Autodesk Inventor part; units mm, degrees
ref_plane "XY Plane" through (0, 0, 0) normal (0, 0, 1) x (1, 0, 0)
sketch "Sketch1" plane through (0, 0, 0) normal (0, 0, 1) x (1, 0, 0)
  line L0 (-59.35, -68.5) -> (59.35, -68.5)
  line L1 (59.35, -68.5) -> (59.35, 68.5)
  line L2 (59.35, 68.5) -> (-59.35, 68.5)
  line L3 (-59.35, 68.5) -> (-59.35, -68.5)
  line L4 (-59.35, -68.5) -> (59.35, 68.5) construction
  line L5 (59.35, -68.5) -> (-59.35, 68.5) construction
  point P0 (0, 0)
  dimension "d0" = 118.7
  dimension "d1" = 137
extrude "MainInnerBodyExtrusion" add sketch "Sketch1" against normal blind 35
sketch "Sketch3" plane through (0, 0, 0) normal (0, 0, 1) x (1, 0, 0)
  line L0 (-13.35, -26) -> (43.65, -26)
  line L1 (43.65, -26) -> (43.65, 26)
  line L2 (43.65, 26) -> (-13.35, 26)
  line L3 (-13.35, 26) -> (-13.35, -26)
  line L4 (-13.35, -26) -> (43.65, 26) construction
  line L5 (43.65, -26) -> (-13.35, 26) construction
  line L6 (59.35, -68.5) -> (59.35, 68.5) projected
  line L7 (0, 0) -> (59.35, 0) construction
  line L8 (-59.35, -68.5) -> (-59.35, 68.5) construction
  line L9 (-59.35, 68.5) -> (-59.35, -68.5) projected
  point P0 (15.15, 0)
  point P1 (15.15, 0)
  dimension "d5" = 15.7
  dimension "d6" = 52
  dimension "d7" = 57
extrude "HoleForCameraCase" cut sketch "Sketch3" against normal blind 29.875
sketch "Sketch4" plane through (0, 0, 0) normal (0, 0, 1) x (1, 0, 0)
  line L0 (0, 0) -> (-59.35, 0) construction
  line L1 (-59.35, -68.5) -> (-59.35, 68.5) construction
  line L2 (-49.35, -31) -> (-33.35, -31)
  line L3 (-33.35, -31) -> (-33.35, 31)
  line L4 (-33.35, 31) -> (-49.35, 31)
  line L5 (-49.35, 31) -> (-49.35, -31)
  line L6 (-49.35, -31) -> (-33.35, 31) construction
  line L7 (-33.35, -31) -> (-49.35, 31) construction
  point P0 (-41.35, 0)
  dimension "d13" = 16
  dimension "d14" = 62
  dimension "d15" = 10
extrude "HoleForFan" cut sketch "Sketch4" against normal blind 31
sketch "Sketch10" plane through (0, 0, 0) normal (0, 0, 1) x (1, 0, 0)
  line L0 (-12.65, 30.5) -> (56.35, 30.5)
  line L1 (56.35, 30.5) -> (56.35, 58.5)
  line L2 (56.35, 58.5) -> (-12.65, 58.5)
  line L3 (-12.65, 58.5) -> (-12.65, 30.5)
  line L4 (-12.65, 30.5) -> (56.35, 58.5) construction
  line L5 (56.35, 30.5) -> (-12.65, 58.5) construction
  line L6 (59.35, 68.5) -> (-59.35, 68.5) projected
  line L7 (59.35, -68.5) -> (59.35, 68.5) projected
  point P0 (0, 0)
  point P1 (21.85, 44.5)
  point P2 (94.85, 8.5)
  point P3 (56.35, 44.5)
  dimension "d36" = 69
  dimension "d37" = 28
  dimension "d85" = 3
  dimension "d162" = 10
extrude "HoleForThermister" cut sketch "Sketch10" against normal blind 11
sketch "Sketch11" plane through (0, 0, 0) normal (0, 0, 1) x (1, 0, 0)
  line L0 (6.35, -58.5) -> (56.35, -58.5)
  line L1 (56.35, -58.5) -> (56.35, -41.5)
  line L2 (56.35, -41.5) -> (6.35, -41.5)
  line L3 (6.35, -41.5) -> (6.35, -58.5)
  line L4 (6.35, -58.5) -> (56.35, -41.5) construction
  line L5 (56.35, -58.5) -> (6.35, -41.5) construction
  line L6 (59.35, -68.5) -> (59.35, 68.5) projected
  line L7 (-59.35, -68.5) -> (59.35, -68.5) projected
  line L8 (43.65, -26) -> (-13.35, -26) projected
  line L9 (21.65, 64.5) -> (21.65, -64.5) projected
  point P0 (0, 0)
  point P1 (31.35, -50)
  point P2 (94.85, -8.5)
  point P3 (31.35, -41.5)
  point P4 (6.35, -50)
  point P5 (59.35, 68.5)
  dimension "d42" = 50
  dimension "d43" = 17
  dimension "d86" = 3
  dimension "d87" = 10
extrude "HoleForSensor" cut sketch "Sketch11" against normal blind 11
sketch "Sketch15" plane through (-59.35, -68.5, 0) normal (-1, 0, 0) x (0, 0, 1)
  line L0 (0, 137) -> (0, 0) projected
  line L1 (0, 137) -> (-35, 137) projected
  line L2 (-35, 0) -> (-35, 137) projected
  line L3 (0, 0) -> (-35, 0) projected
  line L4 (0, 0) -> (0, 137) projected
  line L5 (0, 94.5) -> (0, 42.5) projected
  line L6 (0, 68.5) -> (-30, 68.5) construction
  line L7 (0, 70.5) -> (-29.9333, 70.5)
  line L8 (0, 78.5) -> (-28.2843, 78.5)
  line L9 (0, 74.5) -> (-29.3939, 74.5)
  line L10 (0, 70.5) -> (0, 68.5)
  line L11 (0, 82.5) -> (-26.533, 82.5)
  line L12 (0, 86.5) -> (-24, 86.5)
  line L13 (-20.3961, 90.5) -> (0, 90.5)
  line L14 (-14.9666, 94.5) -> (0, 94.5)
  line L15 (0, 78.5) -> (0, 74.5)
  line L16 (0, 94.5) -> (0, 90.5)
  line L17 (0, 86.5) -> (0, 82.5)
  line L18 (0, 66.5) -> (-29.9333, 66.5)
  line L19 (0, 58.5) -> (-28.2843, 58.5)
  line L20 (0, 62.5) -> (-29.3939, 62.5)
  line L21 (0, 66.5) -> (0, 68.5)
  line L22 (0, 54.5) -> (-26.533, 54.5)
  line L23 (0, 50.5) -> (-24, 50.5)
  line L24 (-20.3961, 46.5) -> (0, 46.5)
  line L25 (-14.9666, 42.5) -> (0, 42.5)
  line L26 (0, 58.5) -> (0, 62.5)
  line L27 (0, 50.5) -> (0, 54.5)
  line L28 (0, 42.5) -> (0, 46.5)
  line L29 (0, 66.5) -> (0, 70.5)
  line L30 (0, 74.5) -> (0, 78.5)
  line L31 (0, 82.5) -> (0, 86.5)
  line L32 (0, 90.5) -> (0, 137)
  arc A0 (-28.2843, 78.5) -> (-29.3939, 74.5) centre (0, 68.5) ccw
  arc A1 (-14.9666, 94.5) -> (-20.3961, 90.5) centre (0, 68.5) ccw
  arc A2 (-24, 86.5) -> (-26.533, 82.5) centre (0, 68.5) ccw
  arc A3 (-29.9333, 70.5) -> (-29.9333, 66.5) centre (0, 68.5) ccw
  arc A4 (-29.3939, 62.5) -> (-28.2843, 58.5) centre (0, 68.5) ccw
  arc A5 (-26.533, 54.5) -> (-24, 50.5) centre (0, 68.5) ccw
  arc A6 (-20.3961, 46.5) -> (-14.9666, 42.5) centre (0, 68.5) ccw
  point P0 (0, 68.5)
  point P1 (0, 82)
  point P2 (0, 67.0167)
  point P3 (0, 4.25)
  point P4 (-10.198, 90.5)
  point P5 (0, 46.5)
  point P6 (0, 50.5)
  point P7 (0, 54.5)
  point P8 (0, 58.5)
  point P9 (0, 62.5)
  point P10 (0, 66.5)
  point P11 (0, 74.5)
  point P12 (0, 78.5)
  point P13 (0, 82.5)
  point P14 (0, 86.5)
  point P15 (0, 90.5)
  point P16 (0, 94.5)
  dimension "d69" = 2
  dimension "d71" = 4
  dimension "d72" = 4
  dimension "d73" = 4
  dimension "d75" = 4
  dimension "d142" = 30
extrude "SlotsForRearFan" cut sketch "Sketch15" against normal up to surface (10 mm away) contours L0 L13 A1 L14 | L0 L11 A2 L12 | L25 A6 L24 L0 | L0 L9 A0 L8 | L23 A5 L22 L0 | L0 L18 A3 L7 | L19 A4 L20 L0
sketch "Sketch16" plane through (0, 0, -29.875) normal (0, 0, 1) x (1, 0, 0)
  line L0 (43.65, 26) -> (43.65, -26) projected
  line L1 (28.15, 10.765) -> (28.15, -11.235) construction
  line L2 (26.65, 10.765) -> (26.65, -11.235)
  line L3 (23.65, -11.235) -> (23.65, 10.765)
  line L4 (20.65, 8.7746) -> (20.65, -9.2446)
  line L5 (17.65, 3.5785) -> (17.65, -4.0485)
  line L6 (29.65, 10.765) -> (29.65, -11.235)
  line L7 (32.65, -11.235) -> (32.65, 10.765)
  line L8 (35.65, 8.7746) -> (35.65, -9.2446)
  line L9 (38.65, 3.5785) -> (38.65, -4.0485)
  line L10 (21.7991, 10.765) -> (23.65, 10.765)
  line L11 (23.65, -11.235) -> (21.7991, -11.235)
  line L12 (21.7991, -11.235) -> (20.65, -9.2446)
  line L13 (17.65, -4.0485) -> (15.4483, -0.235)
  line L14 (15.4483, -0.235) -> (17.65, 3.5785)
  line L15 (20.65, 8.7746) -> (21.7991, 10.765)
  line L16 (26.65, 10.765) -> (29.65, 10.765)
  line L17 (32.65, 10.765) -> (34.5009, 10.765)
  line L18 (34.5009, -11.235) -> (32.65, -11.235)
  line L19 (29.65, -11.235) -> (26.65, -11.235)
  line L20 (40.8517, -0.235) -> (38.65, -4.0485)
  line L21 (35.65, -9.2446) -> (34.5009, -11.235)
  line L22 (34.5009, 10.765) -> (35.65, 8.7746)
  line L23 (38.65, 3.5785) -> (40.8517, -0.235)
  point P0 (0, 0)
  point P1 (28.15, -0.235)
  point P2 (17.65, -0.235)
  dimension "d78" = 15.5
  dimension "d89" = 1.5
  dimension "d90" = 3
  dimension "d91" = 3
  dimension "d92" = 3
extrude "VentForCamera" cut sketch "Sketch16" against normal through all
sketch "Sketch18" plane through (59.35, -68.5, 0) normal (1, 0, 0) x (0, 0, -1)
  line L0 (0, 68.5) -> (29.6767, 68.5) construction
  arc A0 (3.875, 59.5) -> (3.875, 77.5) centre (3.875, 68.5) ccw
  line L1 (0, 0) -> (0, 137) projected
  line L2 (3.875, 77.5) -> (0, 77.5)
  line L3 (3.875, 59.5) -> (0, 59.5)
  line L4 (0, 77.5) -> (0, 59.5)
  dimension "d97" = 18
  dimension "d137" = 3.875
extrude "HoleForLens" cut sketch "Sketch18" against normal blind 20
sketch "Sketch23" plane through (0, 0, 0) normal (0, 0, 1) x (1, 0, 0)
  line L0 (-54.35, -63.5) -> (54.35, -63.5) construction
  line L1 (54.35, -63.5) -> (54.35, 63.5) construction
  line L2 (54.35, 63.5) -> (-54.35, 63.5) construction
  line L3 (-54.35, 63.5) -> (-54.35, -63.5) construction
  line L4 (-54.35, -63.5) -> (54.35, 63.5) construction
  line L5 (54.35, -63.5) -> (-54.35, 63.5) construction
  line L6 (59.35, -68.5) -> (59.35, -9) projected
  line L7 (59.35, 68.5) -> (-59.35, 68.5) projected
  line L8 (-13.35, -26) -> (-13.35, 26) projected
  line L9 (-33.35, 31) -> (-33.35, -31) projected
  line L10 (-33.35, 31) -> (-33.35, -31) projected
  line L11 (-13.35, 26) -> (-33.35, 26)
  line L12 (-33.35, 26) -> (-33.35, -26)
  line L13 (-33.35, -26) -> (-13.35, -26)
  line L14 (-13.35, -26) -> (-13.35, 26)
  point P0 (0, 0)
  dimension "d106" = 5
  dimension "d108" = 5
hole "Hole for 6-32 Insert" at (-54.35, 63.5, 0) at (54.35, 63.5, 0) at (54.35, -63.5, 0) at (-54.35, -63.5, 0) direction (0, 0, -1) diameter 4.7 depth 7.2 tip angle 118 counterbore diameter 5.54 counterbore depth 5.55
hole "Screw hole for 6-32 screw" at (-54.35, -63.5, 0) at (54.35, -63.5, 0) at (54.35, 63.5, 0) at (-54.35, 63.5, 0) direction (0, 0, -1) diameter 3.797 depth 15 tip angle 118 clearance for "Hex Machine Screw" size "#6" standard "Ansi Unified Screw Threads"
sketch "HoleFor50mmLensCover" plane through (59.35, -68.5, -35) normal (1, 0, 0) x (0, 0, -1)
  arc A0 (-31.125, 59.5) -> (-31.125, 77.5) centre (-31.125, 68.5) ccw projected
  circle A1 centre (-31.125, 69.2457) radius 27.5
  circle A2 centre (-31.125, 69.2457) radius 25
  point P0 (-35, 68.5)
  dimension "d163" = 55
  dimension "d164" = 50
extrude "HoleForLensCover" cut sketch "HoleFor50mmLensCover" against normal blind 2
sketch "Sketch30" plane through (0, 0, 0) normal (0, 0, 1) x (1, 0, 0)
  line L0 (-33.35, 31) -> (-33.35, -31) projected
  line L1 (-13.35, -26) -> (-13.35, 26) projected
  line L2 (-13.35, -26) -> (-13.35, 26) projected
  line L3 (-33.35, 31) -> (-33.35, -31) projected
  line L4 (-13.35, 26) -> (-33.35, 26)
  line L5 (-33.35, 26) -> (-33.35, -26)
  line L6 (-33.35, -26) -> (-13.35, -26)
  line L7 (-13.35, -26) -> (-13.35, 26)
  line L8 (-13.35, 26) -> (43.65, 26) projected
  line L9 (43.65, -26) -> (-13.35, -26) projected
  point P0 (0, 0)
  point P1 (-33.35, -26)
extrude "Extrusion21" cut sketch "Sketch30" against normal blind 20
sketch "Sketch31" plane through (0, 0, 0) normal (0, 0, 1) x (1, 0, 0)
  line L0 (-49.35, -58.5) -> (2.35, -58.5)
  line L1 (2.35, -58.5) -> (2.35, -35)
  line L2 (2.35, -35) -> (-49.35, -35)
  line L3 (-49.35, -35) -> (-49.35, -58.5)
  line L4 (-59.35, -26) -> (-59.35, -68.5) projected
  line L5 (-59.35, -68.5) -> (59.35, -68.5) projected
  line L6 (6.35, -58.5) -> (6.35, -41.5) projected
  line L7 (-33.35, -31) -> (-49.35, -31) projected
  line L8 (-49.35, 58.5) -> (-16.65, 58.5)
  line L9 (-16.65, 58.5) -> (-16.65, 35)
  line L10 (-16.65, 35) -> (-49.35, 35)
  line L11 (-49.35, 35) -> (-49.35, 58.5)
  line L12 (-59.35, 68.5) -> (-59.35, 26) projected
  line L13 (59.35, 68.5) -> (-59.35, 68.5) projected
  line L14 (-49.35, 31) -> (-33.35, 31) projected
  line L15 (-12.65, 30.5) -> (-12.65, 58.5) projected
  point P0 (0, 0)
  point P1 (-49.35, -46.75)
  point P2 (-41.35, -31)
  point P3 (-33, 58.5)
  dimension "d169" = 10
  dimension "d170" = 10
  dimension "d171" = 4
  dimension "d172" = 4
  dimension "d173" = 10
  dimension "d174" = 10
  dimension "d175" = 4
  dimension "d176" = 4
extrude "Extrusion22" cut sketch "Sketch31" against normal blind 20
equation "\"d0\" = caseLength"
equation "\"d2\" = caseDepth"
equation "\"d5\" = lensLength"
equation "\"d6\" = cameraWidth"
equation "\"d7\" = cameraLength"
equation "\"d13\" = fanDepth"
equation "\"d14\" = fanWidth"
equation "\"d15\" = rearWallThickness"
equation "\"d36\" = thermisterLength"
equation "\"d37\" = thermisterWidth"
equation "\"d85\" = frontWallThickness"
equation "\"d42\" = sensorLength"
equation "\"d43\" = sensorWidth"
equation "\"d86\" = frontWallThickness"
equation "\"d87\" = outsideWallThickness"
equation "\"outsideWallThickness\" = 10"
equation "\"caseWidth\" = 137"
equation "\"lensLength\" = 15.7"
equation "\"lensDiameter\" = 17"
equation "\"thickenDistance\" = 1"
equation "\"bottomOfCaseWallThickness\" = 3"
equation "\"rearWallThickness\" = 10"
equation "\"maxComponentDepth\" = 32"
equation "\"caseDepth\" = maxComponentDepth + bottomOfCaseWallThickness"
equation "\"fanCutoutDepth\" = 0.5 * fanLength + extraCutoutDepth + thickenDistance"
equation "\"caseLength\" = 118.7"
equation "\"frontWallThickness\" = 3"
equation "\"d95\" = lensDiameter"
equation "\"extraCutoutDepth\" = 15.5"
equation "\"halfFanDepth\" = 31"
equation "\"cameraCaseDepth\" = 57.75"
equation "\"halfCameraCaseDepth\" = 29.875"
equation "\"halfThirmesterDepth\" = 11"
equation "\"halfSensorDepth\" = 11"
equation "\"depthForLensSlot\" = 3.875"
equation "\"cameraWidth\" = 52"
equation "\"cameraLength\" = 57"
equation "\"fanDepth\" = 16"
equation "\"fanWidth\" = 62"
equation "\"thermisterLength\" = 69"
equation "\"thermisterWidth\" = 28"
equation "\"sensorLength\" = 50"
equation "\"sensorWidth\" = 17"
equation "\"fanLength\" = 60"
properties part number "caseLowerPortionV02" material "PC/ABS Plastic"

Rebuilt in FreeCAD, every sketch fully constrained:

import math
import FreeCAD as App
import Part
import Sketcher

V = App.Vector
Q = App.Units.Quantity

doc = App.newDocument("Part")
params = doc.addObject("Spreadsheet::Sheet", "Params")
for row, (alias, value) in enumerate([
    ("sketch1_height", "137 mm"),
    ("sketch1_width", "118.7 mm"),
    ("pad1_length", "35 mm"),
    ("sketch2_width", "57 mm"),
    ("sketch2_height", "52 mm"),
    ("pocket1_length", "29.875 mm"),
    ("sketch3_width", "16 mm"),
    ("sketch3_height", "62 mm"),
    ("pocket2_length", "31 mm"),
    ("sketch4_width", "69 mm"),
    ("sketch4_height", "28 mm"),
    ("pocket3_length", "11 mm"),
    ("sketch5_width", "50 mm"),
    ("sketch5_height", "17 mm"),
    ("pocket4_length", "11 mm"),
    ("sketch6_radius", "30 mm"),
    ("sketch6_width", "4 mm"),
    ("pocket5_length", "10 mm"),
    ("sketch7_width", "3 mm"),
    ("sketch7_height", "22 mm"),
    ("sketch8_radius", "9 mm"),
    ("pocket7_length", "20 mm"),
    ("sketch9_diameter", "4.7 mm"),
    ("hole_diameter", "4.7 mm"),
    ("hole_depth", "7.2 mm"),
    ("hole_cbore_diameter", "5.54 mm"),
    ("hole_cbore_depth", "5.55 mm"),
    ("hole2_diameter", "3.797 mm"),
    ("hole2_depth", "15 mm"),
    ("sketch11_diameter", "55 mm"),
    ("sketch11_diameter2", "50 mm"),
    ("pocket8_length", "2 mm"),
    ("sketch12_width", "20 mm"),
    ("sketch12_height", "52 mm"),
    ("pocket9_length", "20 mm"),
    ("sketch13_width", "51.7 mm"),
    ("sketch13_width2", "32.7 mm"),
    ("sketch13_height", "23.5 mm"),
    ("pocket10_length", "20 mm"),
], start=1):
    params.set(f"A{row}", alias)
    params.set(f"B{row}", "=" + value)
    params.setAlias(f"B{row}", alias)

body = doc.addObject("PartDesign::Body", "Body")

sketch1 = body.newObject("Sketcher::SketchObject", "Sketch")
sketch1.AttachmentSupport = (doc.getObject("XY_Plane"), [""])
sketch1.MapMode = "FlatFace"
sketch1.addGeometry([
    Part.LineSegment(V(-59, 68, 0), V(-59, -68, 0)),
    Part.LineSegment(V(-59, -68, 0), V(59, -68, 0)),
    Part.LineSegment(V(59, -68, 0), V(59, 68, 0)),
    Part.LineSegment(V(59, 68, 0), V(-59, 68, 0)),
], False)
sketch1.addConstraint([
    Sketcher.Constraint("Coincident", 0, 2, 1, 1),
    Sketcher.Constraint("Coincident", 1, 2, 2, 1),
    Sketcher.Constraint("Coincident", 2, 2, 3, 1),
    Sketcher.Constraint("Coincident", 3, 2, 0, 1),
    Sketcher.Constraint("Vertical", 0),
    Sketcher.Constraint("Horizontal", 1),
    Sketcher.Constraint("Vertical", 2),
    Sketcher.Constraint("Horizontal", 3),
    Sketcher.Constraint("Symmetric", 0, 2, 2, 2, -1, 1),
    Sketcher.Constraint("DistanceY", 0, 2, 0, 1, 137.0),
    Sketcher.Constraint("DistanceX", 1, 1, 1, 2, 118.7),
])
sketch1.setExpression("Constraints[9]", "Params.sketch1_height")
sketch1.setExpression("Constraints[10]", "Params.sketch1_width")
pad1 = body.newObject("PartDesign::Pad", "Pad")
pad1.Profile = sketch1
pad1.setExpression("Length", "Params.pad1_length")
pad1.Reversed = True

sketch2 = body.newObject("Sketcher::SketchObject", "Sketch001")
sketch2.AttachmentSupport = (doc.getObject("XY_Plane"), [""])
sketch2.MapMode = "FlatFace"
sketch2.addGeometry([
    Part.LineSegment(V(-13, 26, 0), V(-13, -26, 0)),
    Part.LineSegment(V(-13, -26, 0), V(44, -26, 0)),
    Part.LineSegment(V(44, -26, 0), V(44, 26, 0)),
    Part.LineSegment(V(44, 26, 0), V(-13, 26, 0)),
], False)
sketch2.addConstraint([
    Sketcher.Constraint("Coincident", 0, 2, 1, 1),
    Sketcher.Constraint("Coincident", 1, 2, 2, 1),
    Sketcher.Constraint("Coincident", 2, 2, 3, 1),
    Sketcher.Constraint("Coincident", 3, 2, 0, 1),
    Sketcher.Constraint("Vertical", 0),
    Sketcher.Constraint("Horizontal", 1),
    Sketcher.Constraint("Vertical", 2),
    Sketcher.Constraint("Horizontal", 3),
    Sketcher.Constraint("DistanceX", 1, 1, 1, 2, 57.0),
    Sketcher.Constraint("DistanceY", 0, 2, 0, 1, 52.0),
    Sketcher.Constraint("DistanceY", 0, 2, -1, 1, 26.0),
    Sketcher.Constraint("DistanceX", 0, 2, -1, 1, 13.35),
])
sketch2.setExpression("Constraints[8]", "Params.sketch2_width")
sketch2.setExpression("Constraints[9]", "Params.sketch2_height")
pocket1 = body.newObject("PartDesign::Pocket", "Pocket")
pocket1.Profile = sketch2
pocket1.setExpression("Length", "Params.pocket1_length")

sketch3 = body.newObject("Sketcher::SketchObject", "Sketch002")
sketch3.AttachmentSupport = (doc.getObject("XY_Plane"), [""])
sketch3.MapMode = "FlatFace"
sketch3.addGeometry([
    Part.LineSegment(V(-49, 31, 0), V(-49, -31, 0)),
    Part.LineSegment(V(-49, -31, 0), V(-33, -31, 0)),
    Part.LineSegment(V(-33, -31, 0), V(-33, 31, 0)),
    Part.LineSegment(V(-33, 31, 0), V(-49, 31, 0)),
], False)
sketch3.addConstraint([
    Sketcher.Constraint("Coincident", 0, 2, 1, 1),
    Sketcher.Constraint("Coincident", 1, 2, 2, 1),
    Sketcher.Constraint("Coincident", 2, 2, 3, 1),
    Sketcher.Constraint("Coincident", 3, 2, 0, 1),
    Sketcher.Constraint("Vertical", 0),
    Sketcher.Constraint("Horizontal", 1),
    Sketcher.Constraint("Vertical", 2),
    Sketcher.Constraint("Horizontal", 3),
    Sketcher.Constraint("DistanceX", 1, 1, 1, 2, 16.0),
    Sketcher.Constraint("DistanceY", 0, 2, 0, 1, 62.0),
    Sketcher.Constraint("DistanceY", 0, 2, -1, 1, 31.0),
    Sketcher.Constraint("DistanceX", 0, 2, -1, 1, 49.35),
])
sketch3.setExpression("Constraints[8]", "Params.sketch3_width")
sketch3.setExpression("Constraints[9]", "Params.sketch3_height")
pocket2 = body.newObject("PartDesign::Pocket", "Pocket001")
pocket2.Profile = sketch3
pocket2.setExpression("Length", "Params.pocket2_length")

sketch4 = body.newObject("Sketcher::SketchObject", "Sketch003")
sketch4.AttachmentSupport = (doc.getObject("XY_Plane"), [""])
sketch4.MapMode = "FlatFace"
sketch4.addGeometry([
    Part.LineSegment(V(-13, 58, 0), V(-13, 30, 0)),
    Part.LineSegment(V(-13, 30, 0), V(56, 30, 0)),
    Part.LineSegment(V(56, 30, 0), V(56, 58, 0)),
    Part.LineSegment(V(56, 58, 0), V(-13, 58, 0)),
], False)
sketch4.addConstraint([
    Sketcher.Constraint("Coincident", 0, 2, 1, 1),
    Sketcher.Constraint("Coincident", 1, 2, 2, 1),
    Sketcher.Constraint("Coincident", 2, 2, 3, 1),
    Sketcher.Constraint("Coincident", 3, 2, 0, 1),
    Sketcher.Constraint("Vertical", 0),
    Sketcher.Constraint("Horizontal", 1),
    Sketcher.Constraint("Vertical", 2),
    Sketcher.Constraint("Horizontal", 3),
    Sketcher.Constraint("DistanceX", 1, 1, 1, 2, 69.0),
    Sketcher.Constraint("DistanceY", 0, 2, 0, 1, 28.0),
    Sketcher.Constraint("DistanceY", -1, 1, 0, 2, 30.5),
    Sketcher.Constraint("DistanceX", 0, 2, -1, 1, 12.65),
])
sketch4.setExpression("Constraints[8]", "Params.sketch4_width")
sketch4.setExpression("Constraints[9]", "Params.sketch4_height")
pocket3 = body.newObject("PartDesign::Pocket", "Pocket002")
pocket3.Profile = sketch4
pocket3.setExpression("Length", "Params.pocket3_length")

sketch5 = body.newObject("Sketcher::SketchObject", "Sketch004")
sketch5.AttachmentSupport = (doc.getObject("XY_Plane"), [""])
sketch5.MapMode = "FlatFace"
sketch5.addGeometry([
    Part.LineSegment(V(6, -42, 0), V(6, -58, 0)),
    Part.LineSegment(V(6, -58, 0), V(56, -58, 0)),
    Part.LineSegment(V(56, -58, 0), V(56, -42, 0)),
    Part.LineSegment(V(56, -42, 0), V(6, -42, 0)),
], False)
sketch5.addConstraint([
    Sketcher.Constraint("Coincident", 0, 2, 1, 1),
    Sketcher.Constraint("Coincident", 1, 2, 2, 1),
    Sketcher.Constraint("Coincident", 2, 2, 3, 1),
    Sketcher.Constraint("Coincident", 3, 2, 0, 1),
    Sketcher.Constraint("Vertical", 0),
    Sketcher.Constraint("Horizontal", 1),
    Sketcher.Constraint("Vertical", 2),
    Sketcher.Constraint("Horizontal", 3),
    Sketcher.Constraint("DistanceX", 1, 1, 1, 2, 50.0),
    Sketcher.Constraint("DistanceY", 0, 2, 0, 1, 17.0),
    Sketcher.Constraint("DistanceY", 0, 2, -1, 1, 58.5),
    Sketcher.Constraint("DistanceX", -1, 1, 0, 2, 6.35),
])
sketch5.setExpression("Constraints[8]", "Params.sketch5_width")
sketch5.setExpression("Constraints[9]", "Params.sketch5_height")
pocket4 = body.newObject("PartDesign::Pocket", "Pocket003")
pocket4.Profile = sketch5
pocket4.setExpression("Length", "Params.pocket4_length")

sketch6 = body.newObject("Sketcher::SketchObject", "Sketch005")
sketch6.AttachmentSupport = (doc.getObject("YZ_Plane"), [""])
sketch6.MapMode = "FlatFace"
sketch6.AttachmentOffset = App.Placement(V(0, 0, -59.35), App.Rotation())
sketch6.addGeometry([
    Part.LineSegment(V(22, 0, 0), V(26, 0, 0)),
    Part.LineSegment(V(26, 0, 0), V(26, -14.9666, 0)),
    Part.ArcOfCircle(Part.Circle(V(-0.001963, 0.001282, 0), V(0, 0, 1), 30.002326), math.radians(-42.832706), math.radians(-29.926638)),
    Part.LineSegment(V(22, -20.3961, 0), V(22, 0, 0)),
    Part.LineSegment(V(14, 0, 0), V(18, 0, 0)),
    Part.LineSegment(V(18, 0, 0), V(18, -24, 0)),
    Part.ArcOfCircle(Part.Circle(V(0, 0, 0), V(0, 0, 1), 30.000041), math.radians(-62.181862), math.radians(-53.130102)),
    Part.LineSegment(V(14, -26.533, 0), V(14, 0, 0)),
    Part.LineSegment(V(-26, -14.9666, 0), V(-26, 0, 0)),
    Part.LineSegment(V(-26, 0, 0), V(-22, 0, 0)),
    Part.LineSegment(V(-22, 0, 0), V(-22, -20.3961, 0)),
    Part.ArcOfCircle(Part.Circle(V(-0.001806, -0.001494, 0), V(0, 0, 1), 29.997675), math.radians(-150.074367), math.radians(-137.166289)),
    Part.LineSegment(V(6, 0, 0), V(10, 0, 0)),
    Part.LineSegment(V(10, 0, 0), V(10, -28.2843, 0)),
    Part.ArcOfCircle(Part.Circle(V(0, 0, 0), V(0, 0, 1), 29.999985), math.radians(-78.46305), math.radians(-70.528798)),
    Part.LineSegment(V(6, -29.3939, 0), V(6, 0, 0)),
    Part.LineSegment(V(-18, -24, 0), V(-18, 0, 0)),
    Part.LineSegment(V(-18, 0, 0), V(-14, 0, 0)),
    Part.LineSegment(V(-14, 0, 0), V(-14, -26.533, 0)),
    Part.ArcOfCircle(Part.Circle(V(0, 0, 0), V(0, 0, 1), 29.999985), math.radians(-126.869898), math.radians(-117.818138)),
    Part.LineSegment(V(-2, 0, 0), V(2, 0, 0)),
    Part.LineSegment(V(2, 0, 0), V(2, -29.9333, 0)),
    Part.ArcOfCircle(Part.Circle(V(0, 0, 0), V(0, 0, 1), 30.000041), math.radians(-93.822549), math.radians(-86.177451)),
    Part.LineSegment(V(-2, -29.9333, 0), V(-2, 0, 0)),
    Part.LineSegment(V(-10, -28.2843, 0), V(-10, 0, 0)),
    Part.LineSegment(V(-10, 0, 0), V(-6, 0, 0)),
    Part.LineSegment(V(-6, 0, 0), V(-6, -29.3939, 0)),
    Part.ArcOfCircle(Part.Circle(V(0, 0, 0), V(0, 0, 1), 30.000041), math.radians(-109.471202), math.radians(-101.53695)),
], False)
sketch6.addConstraint([
    Sketcher.Constraint("Coincident", 0, 2, 1, 1),
    Sketcher.Constraint("Coincident", 1, 2, 2, 2),
    Sketcher.Constraint("Coincident", 2, 1, 3, 1),
    Sketcher.Constraint("Coincident", 3, 2, 0, 1),
    Sketcher.Constraint("Coincident", 4, 2, 5, 1),
    Sketcher.Constraint("Coincident", 5, 2, 6, 2),
    Sketcher.Constraint("Coincident", 6, 1, 7, 1),
    Sketcher.Constraint("Coincident", 7, 2, 4, 1),
    Sketcher.Constraint("Coincident", 8, 2, 9, 1),
    Sketcher.Constraint("Coincident", 9, 2, 10, 1),
    Sketcher.Constraint("Coincident", 10, 2, 11, 2),
    Sketcher.Constraint("Coincident", 11, 1, 8, 1),
    Sketcher.Constraint("Coincident", 12, 2, 13, 1),
    Sketcher.Constraint("Coincident", 13, 2, 14, 2),
    Sketcher.Constraint("Coincident", 14, 1, 15, 1),
    Sketcher.Constraint("Coincident", 15, 2, 12, 1),
    Sketcher.Constraint("Coincident", 16, 2, 17, 1),
    Sketcher.Constraint("Coincident", 17, 2, 18, 1),
    Sketcher.Constraint("Coincident", 18, 2, 19, 2),
    Sketcher.Constraint("Coincident", 19, 1, 16, 1),
    Sketcher.Constraint("Coincident", 20, 2, 21, 1),
    Sketcher.Constraint("Coincident", 21, 2, 22, 2),
    Sketcher.Constraint("Coincident", 22, 1, 23, 1),
    Sketcher.Constraint("Coincident", 23, 2, 20, 1),
    Sketcher.Constraint("Coincident", 24, 2, 25, 1),
    Sketcher.Constraint("Coincident", 25, 2, 26, 1),
    Sketcher.Constraint("Coincident", 26, 2, 27, 2),
    Sketcher.Constraint("Coincident", 27, 1, 24, 1),
    Sketcher.Constraint("Horizontal", 0),
    Sketcher.Constraint("Vertical", 1),
    Sketcher.Constraint("Vertical", 3),
    Sketcher.Constraint("Horizontal", 4),
    Sketcher.Constraint("Vertical", 5),
    Sketcher.Constraint("Vertical", 7),
    Sketcher.Constraint("Vertical", 8),
    Sketcher.Constraint("Horizontal", 9),
    Sketcher.Constraint("Vertical", 10),
    Sketcher.Constraint("Horizontal", 12),
    Sketcher.Constraint("Vertical", 13),
    Sketcher.Constraint("Vertical", 15),
    Sketcher.Constraint("Vertical", 16),
    Sketcher.Constraint("Horizontal", 17),
    Sketcher.Constraint("Vertical", 18),
    Sketcher.Constraint("Horizontal", 20),
    Sketcher.Constraint("Vertical", 21),
    Sketcher.Constraint("Vertical", 23),
    Sketcher.Constraint("Vertical", 24),
    Sketcher.Constraint("Horizontal", 25),
    Sketcher.Constraint("Vertical", 26),
    Sketcher.Constraint("Coincident", 6, 3, -1, 1),
    Sketcher.Constraint("Coincident", 14, 3, -1, 1),
    Sketcher.Constraint("Coincident", 19, 3, -1, 1),
    Sketcher.Constraint("Coincident", 22, 3, -1, 1),
    Sketcher.Constraint("Coincident", 27, 3, -1, 1),
    Sketcher.Constraint("Equal", 6, 14),
    Sketcher.Constraint("Equal", 14, 19),
    Sketcher.Constraint("Equal", 19, 22),
    Sketcher.Constraint("Equal", 22, 27),
    Sketcher.Constraint("Symmetric", 0, 2, 8, 2, -1, 1),
    Sketcher.Constraint("Symmetric", 4, 2, 16, 2, -1, 1),
    Sketcher.Constraint("Symmetric", 20, 2, 23, 2, -1, 1),
    Sketcher.Constraint("Symmetric", 12, 2, 24, 2, -1, 1),
    Sketcher.Constraint("Symmetric", 3, 2, 9, 2, -2),
    Sketcher.Constraint("Symmetric", 7, 2, 17, 2, -2),
    Sketcher.Constraint("Symmetric", 15, 2, 25, 2, -2),
    Sketcher.Constraint("Symmetric", 2, 3, 11, 3, -1),
    Sketcher.Constraint("Horizontal", 2, 1, 10, 2),
    Sketcher.Constraint("Horizontal", 1, 2, 11, 1),
    Sketcher.Constraint("Equal", 0, 4),
    Sketcher.Constraint("Equal", 9, 12),
    Sketcher.Constraint("Equal", 17, 20),
    Sketcher.Constraint("Radius", 6, 30.0),
    Sketcher.Constraint("DistanceX", 0, 1, 0, 2, 4.0),
    Sketcher.Constraint("DistanceX", 4, 2, 3, 2, 4.0),
    Sketcher.Constraint("DistanceX", 12, 2, 7, 2, 4.0),
    Sketcher.Constraint("DistanceX", 21, 2, 14, 1, 4.0),
    Sketcher.Constraint("Radius", 2, 30.0023),
    Sketcher.Constraint("Radius", 11, 29.9977),
])
sketch6.setExpression("Constraints[71]", "Params.sketch6_radius")
sketch6.setExpression("Constraints[72]", "Params.sketch6_width")
pocket5 = body.newObject("PartDesign::Pocket", "Pocket004")
pocket5.Profile = sketch6
pocket5.setExpression("Length", "Params.pocket5_length")
pocket5.Reversed = True

sketch7 = body.newObject("Sketcher::SketchObject", "Sketch006")
sketch7.AttachmentSupport = (doc.getObject("XY_Plane"), [""])
sketch7.MapMode = "FlatFace"
sketch7.AttachmentOffset = App.Placement(V(0, 0, -29.875), App.Rotation())
sketch7.addGeometry([
    Part.LineSegment(V(29.6, 10.8, 0), V(26.6, 10.8, 0)),
    Part.LineSegment(V(26.6, 10.8, 0), V(26.6, -11.2, 0)),
    Part.LineSegment(V(26.6, -11.2, 0), V(29.6, -11.2, 0)),
    Part.LineSegment(V(29.6, -11.2, 0), V(29.6, 10.8, 0)),
    Part.LineSegment(V(21.8, -11.2, 0), V(23.6, -11.2, 0)),
    Part.LineSegment(V(23.6, -11.2, 0), V(23.6, 10.8, 0)),
    Part.LineSegment(V(23.6, 10.8, 0), V(21.8, 10.8, 0)),
    Part.LineSegment(V(21.8, 10.8, 0), V(20.6, 8.8, 0)),
    Part.LineSegment(V(20.6, 8.8, 0), V(20.6, -9.2, 0)),
    Part.LineSegment(V(20.6, -9.2, 0), V(21.8, -11.2, 0)),
    Part.LineSegment(V(17.6, -4, 0), V(17.6, 3.6, 0)),
    Part.LineSegment(V(17.6, 3.6, 0), V(15.4, -0.2, 0)),
    Part.LineSegment(V(15.4, -0.2, 0), V(17.6, -4, 0)),
    Part.LineSegment(V(32.6, 10.8, 0), V(32.6, -11.2, 0)),
    Part.LineSegment(V(32.6, -11.2, 0), V(34.5, -11.2, 0)),
    Part.LineSegment(V(34.5, -11.2, 0), V(35.6, -9.2, 0)),
    Part.LineSegment(V(35.6, -9.2, 0), V(35.6, 8.8, 0)),
    Part.LineSegment(V(35.6, 8.8, 0), V(34.5, 10.8, 0)),
    Part.LineSegment(V(34.5, 10.8, 0), V(32.6, 10.8, 0)),
    Part.LineSegment(V(40.9, -0.2, 0), V(38.6, 3.6, 0)),
    Part.LineSegment(V(38.6, 3.6, 0), V(38.6, -4, 0)),
    Part.LineSegment(V(38.6, -4, 0), V(40.9, -0.2, 0)),
], False)
sketch7.addConstraint([
    Sketcher.Constraint("Coincident", 0, 2, 1, 1),
    Sketcher.Constraint("Coincident", 1, 2, 2, 1),
    Sketcher.Constraint("Coincident", 2, 2, 3, 1),
    Sketcher.Constraint("Coincident", 3, 2, 0, 1),
    Sketcher.Constraint("Coincident", 4, 2, 5, 1),
    Sketcher.Constraint("Coincident", 5, 2, 6, 1),
    Sketcher.Constraint("Coincident", 6, 2, 7, 1),
    Sketcher.Constraint("Coincident", 7, 2, 8, 1),
    Sketcher.Constraint("Coincident", 8, 2, 9, 1),
    Sketcher.Constraint("Coincident", 9, 2, 4, 1),
    Sketcher.Constraint("Coincident", 10, 2, 11, 1),
    Sketcher.Constraint("Coincident", 11, 2, 12, 1),
    Sketcher.Constraint("Coincident", 12, 2, 10, 1),
    Sketcher.Constraint("Coincident", 13, 2, 14, 1),
    Sketcher.Constraint("Coincident", 14, 2, 15, 1),
    Sketcher.Constraint("Coincident", 15, 2, 16, 1),
    Sketcher.Constraint("Coincident", 16, 2, 17, 1),
    Sketcher.Constraint("Coincident", 17, 2, 18, 1),
    Sketcher.Constraint("Coincident", 18, 2, 13, 1),
    Sketcher.Constraint("Coincident", 19, 2, 20, 1),
    Sketcher.Constraint("Coincident", 20, 2, 21, 1),
    Sketcher.Constraint("Coincident", 21, 2, 19, 1),
    Sketcher.Constraint("Horizontal", 0),
    Sketcher.Constraint("Vertical", 1),
    Sketcher.Constraint("Horizontal", 2),
    Sketcher.Constraint("Vertical", 3),
    Sketcher.Constraint("Horizontal", 4),
    Sketcher.Constraint("Vertical", 5),
    Sketcher.Constraint("Horizontal", 6),
    Sketcher.Constraint("Vertical", 8),
    Sketcher.Constraint("Vertical", 10),
    Sketcher.Constraint("Vertical", 13),
    Sketcher.Constraint("Horizontal", 14),
    Sketcher.Constraint("Vertical", 16),
    Sketcher.Constraint("Horizontal", 18),
    Sketcher.Constraint("Vertical", 20),
    Sketcher.Constraint("Parallel", 7, 11),
    Sketcher.Constraint("Parallel", 9, 12),
    Sketcher.Constraint("Parallel", 11, 15),
    Sketcher.Constraint("Parallel", 12, 17),
    Sketcher.Constraint("Parallel", 17, 19),
    Sketcher.Constraint("Parallel", 15, 21),
    Sketcher.Constraint("Horizontal", 2, 2, 4, 2),
    Sketcher.Constraint("Horizontal", 3, 2, 5, 2),
    Sketcher.Constraint("Horizontal", 9, 2, 13, 2),
    Sketcher.Constraint("Horizontal", 8, 2, 15, 2),
    Sketcher.Constraint("Horizontal", 7, 2, 16, 2),
    Sketcher.Constraint("Horizontal", 6, 2, 17, 2),
    Sketcher.Constraint("Horizontal", 10, 2, 19, 2),
    Sketcher.Constraint("Horizontal", 12, 2, 20, 2),
    Sketcher.Constraint("Horizontal", 11, 2, 21, 2),
    Sketcher.Constraint("Vertical", 6, 2, 9, 2),
    Sketcher.Constraint("Equal", 6, 14),
    Sketcher.Constraint("DistanceX", 0, 2, 0, 1, 3.0),
    Sketcher.Constraint("DistanceX", 4, 2, 1, 2, 3.0),
    Sketcher.Constraint("DistanceX", 7, 2, 5, 2, 3.0),
    Sketcher.Constraint("DistanceX", 10, 2, 7, 2, 3.0),
    Sketcher.Constraint("DistanceX", 2, 2, 13, 2, 3.0),
    Sketcher.Constraint("DistanceX", 16, 2, 19, 2, 3.0),
    Sketcher.Constraint("DistanceY", 1, 2, 1, 1, 22.0),
    Sketcher.Constraint("Angle", 11, Q("-119.9997 deg")),
    Sketcher.Constraint("DistanceY", 11, 2, 6, 2, 11.0),
    Sketcher.Constraint("DistanceX", 4, 1, 4, 2, 1.851),
    Sketcher.Constraint("DistanceY", 10, 1, 10, 2, 7.627),
    Sketcher.Constraint("DistanceX", -1, 1, 0, 2, 26.65),
    Sketcher.Constraint("DistanceY", -1, 1, 0, 2, 10.765),
])
sketch7.setExpression("Constraints[53]", "Params.sketch7_width")
sketch7.setExpression("Constraints[59]", "Params.sketch7_height")
pocket6 = body.newObject("PartDesign::Pocket", "Pocket005")
pocket6.Profile = sketch7
pocket6.Type = "ThroughAll"

sketch8 = body.newObject("Sketcher::SketchObject", "Sketch007")
sketch8.AttachmentSupport = (doc.getObject("YZ_Plane"), [""])
sketch8.MapMode = "FlatFace"
sketch8.AttachmentOffset = App.Placement(V(0, 0, 59.35), App.Rotation())
sketch8.addGeometry([
    Part.LineSegment(V(-9, 0, 0), V(-9, -3.9, 0)),
    Part.ArcOfCircle(Part.Circle(V(0, -3.9, 0), V(0, 0, 1), 9), math.radians(180), math.radians(360)),
    Part.LineSegment(V(9, -3.9, 0), V(9, 0, 0)),
    Part.LineSegment(V(9, 0, 0), V(-9, 0, 0)),
], False)
sketch8.addConstraint([
    Sketcher.Constraint("Tangent", 0, 2, 1, 1),
    Sketcher.Constraint("Tangent", 1, 2, 2, 1),
    Sketcher.Constraint("Coincident", 2, 2, 3, 1),
    Sketcher.Constraint("Coincident", 3, 2, 0, 1),
    Sketcher.Constraint("Vertical", 0),
    Sketcher.Constraint("Vertical", 2),
    Sketcher.Constraint("Horizontal", 3),
    Sketcher.Constraint("Symmetric", 2, 2, 3, 2, -1, 1),
    Sketcher.Constraint("Radius", 1, 9.0),
    Sketcher.Constraint("DistanceY", 0, 2, 0, 1, 3.875),
])
sketch8.setExpression("Constraints[8]", "Params.sketch8_radius")
pocket7 = body.newObject("PartDesign::Pocket", "Pocket006")
pocket7.Profile = sketch8
pocket7.setExpression("Length", "Params.pocket7_length")

sketch9 = body.newObject("Sketcher::SketchObject", "Sketch008")
sketch9.AttachmentSupport = (doc.getObject("XY_Plane"), [""])
sketch9.MapMode = "FlatFace"
sketch9.addGeometry([
    Part.Circle(V(-54.4, 63.5, 0), V(0, 0, 1), 2.4),
    Part.Circle(V(54.4, 63.5, 0), V(0, 0, 1), 2.4),
    Part.Circle(V(54.4, -63.5, 0), V(0, 0, 1), 2.4),
    Part.Circle(V(-54.4, -63.5, 0), V(0, 0, 1), 2.4),
], False)
sketch9.addConstraint([
    Sketcher.Constraint("Equal", 0, 1),
    Sketcher.Constraint("Equal", 1, 2),
    Sketcher.Constraint("Equal", 2, 3),
    Sketcher.Constraint("Symmetric", 0, 3, 2, 3, -1, 1),
    Sketcher.Constraint("Symmetric", 1, 3, 3, 3, -1, 1),
    Sketcher.Constraint("Symmetric", 0, 3, 1, 3, -2),
    Sketcher.Constraint("Diameter", 0, 4.7),
    Sketcher.Constraint("DistanceY", 2, 3, 1, 3, 127.0),
    Sketcher.Constraint("DistanceX", 0, 3, 1, 3, 108.7),
])
sketch9.setExpression("Constraints[6]", "Params.sketch9_diameter")
doc.recompute()
hole = body.newObject("PartDesign::Hole", "Hole")
hole.Profile = sketch9
hole.ThreadType = "None"
hole.setExpression("Diameter", "Params.hole_diameter")
hole.DepthType = "Dimension"
hole.setExpression("Depth", "Params.hole_depth")
hole.DrillPoint = "Angled"
hole.DrillPointAngle = 118
hole.HoleCutType = "Counterbore"
hole.setExpression("HoleCutDiameter", "Params.hole_cbore_diameter")
hole.setExpression("HoleCutDepth", "Params.hole_cbore_depth")

sketch10 = body.newObject("Sketcher::SketchObject", "Sketch009")
sketch10.AttachmentSupport = (doc.getObject("XY_Plane"), [""])
sketch10.MapMode = "FlatFace"
sketch10.addGeometry([
    Part.Circle(V(-54.4, -63.5, 0), V(0, 0, 1), 1.9),
    Part.Circle(V(54.4, -63.5, 0), V(0, 0, 1), 1.9),
    Part.Circle(V(54.4, 63.5, 0), V(0, 0, 1), 1.9),
    Part.Circle(V(-54.4, 63.5, 0), V(0, 0, 1), 1.9),
], False)
sketch10.addConstraint([
    Sketcher.Constraint("Equal", 0, 1),
    Sketcher.Constraint("Equal", 1, 2),
    Sketcher.Constraint("Equal", 2, 3),
    Sketcher.Constraint("Symmetric", 0, 3, 2, 3, -1, 1),
    Sketcher.Constraint("Symmetric", 1, 3, 3, 3, -1, 1),
    Sketcher.Constraint("Symmetric", 0, 3, 1, 3, -2),
    Sketcher.Constraint("Diameter", 0, 3.797),
    Sketcher.Constraint("DistanceY", 1, 3, 2, 3, 127.0),
    Sketcher.Constraint("DistanceX", 0, 3, 1, 3, 108.7),
])
doc.recompute()
hole2 = body.newObject("PartDesign::Hole", "Hole001")
hole2.Profile = sketch10
hole2.ThreadType = "None"
hole2.setExpression("Diameter", "Params.hole2_diameter")
hole2.DepthType = "Dimension"
hole2.setExpression("Depth", "Params.hole2_depth")
hole2.DrillPoint = "Angled"
hole2.DrillPointAngle = 118

sketch11 = body.newObject("Sketcher::SketchObject", "Sketch010")
sketch11.AttachmentSupport = (doc.getObject("YZ_Plane"), [""])
sketch11.MapMode = "FlatFace"
sketch11.AttachmentOffset = App.Placement(V(0, 0, 59.35), App.Rotation())
sketch11.addGeometry([
    Part.Circle(V(1, -4, 0), V(0, 0, 1), 28),
    Part.Circle(V(1, -4, 0), V(0, 0, 1), 25),
], False)
sketch11.addConstraint([
    Sketcher.Constraint("Coincident", 1, 3, 0, 3),
    Sketcher.Constraint("Diameter", 0, 55.0),
    Sketcher.Constraint("Diameter", 1, 50.0),
    Sketcher.Constraint("DistanceY", 0, 3, -1, 1, 3.875),
    Sketcher.Constraint("DistanceX", -1, 1, 0, 3, 0.7457),
])
sketch11.setExpression("Constraints[1]", "Params.sketch11_diameter")
sketch11.setExpression("Constraints[2]", "Params.sketch11_diameter2")
pocket8 = body.newObject("PartDesign::Pocket", "Pocket007")
pocket8.Profile = sketch11
pocket8.setExpression("Length", "Params.pocket8_length")

sketch12 = body.newObject("Sketcher::SketchObject", "Sketch011")
sketch12.AttachmentSupport = (doc.getObject("XY_Plane"), [""])
sketch12.MapMode = "FlatFace"
sketch12.addGeometry([
    Part.LineSegment(V(-13, 26, 0), V(-33, 26, 0)),
    Part.LineSegment(V(-33, 26, 0), V(-33, -26, 0)),
    Part.LineSegment(V(-33, -26, 0), V(-13, -26, 0)),
    Part.LineSegment(V(-13, -26, 0), V(-13, 26, 0)),
], False)
sketch12.addConstraint([
    Sketcher.Constraint("Coincident", 0, 2, 1, 1),
    Sketcher.Constraint("Coincident", 1, 2, 2, 1),
    Sketcher.Constraint("Coincident", 2, 2, 3, 1),
    Sketcher.Constraint("Coincident", 3, 2, 0, 1),
    Sketcher.Constraint("Horizontal", 0),
    Sketcher.Constraint("Vertical", 1),
    Sketcher.Constraint("Horizontal", 2),
    Sketcher.Constraint("Vertical", 3),
    Sketcher.Constraint("DistanceX", 0, 2, 0, 1, 20.0),
    Sketcher.Constraint("DistanceY", 1, 2, 1, 1, 52.0),
    Sketcher.Constraint("DistanceY", -1, 1, 0, 2, 26.0),
    Sketcher.Constraint("DistanceX", 0, 2, -1, 1, 33.35),
])
sketch12.setExpression("Constraints[8]", "Params.sketch12_width")
sketch12.setExpression("Constraints[9]", "Params.sketch12_height")
pocket9 = body.newObject("PartDesign::Pocket", "Pocket008")
pocket9.Profile = sketch12
pocket9.setExpression("Length", "Params.pocket9_length")

sketch13 = body.newObject("Sketcher::SketchObject", "Sketch012")
sketch13.AttachmentSupport = (doc.getObject("XY_Plane"), [""])
sketch13.MapMode = "FlatFace"
sketch13.addGeometry([
    Part.LineSegment(V(-49, -35, 0), V(-49, -58, 0)),
    Part.LineSegment(V(-49, -58, 0), V(2, -58, 0)),
    Part.LineSegment(V(2, -58, 0), V(2, -35, 0)),
    Part.LineSegment(V(2, -35, 0), V(-49, -35, 0)),
    Part.LineSegment(V(-17, 58, 0), V(-49, 58, 0)),
    Part.LineSegment(V(-49, 58, 0), V(-49, 35, 0)),
    Part.LineSegment(V(-49, 35, 0), V(-17, 35, 0)),
    Part.LineSegment(V(-17, 35, 0), V(-17, 58, 0)),
], False)
sketch13.addConstraint([
    Sketcher.Constraint("Coincident", 0, 2, 1, 1),
    Sketcher.Constraint("Coincident", 1, 2, 2, 1),
    Sketcher.Constraint("Coincident", 2, 2, 3, 1),
    Sketcher.Constraint("Coincident", 3, 2, 0, 1),
    Sketcher.Constraint("Coincident", 4, 2, 5, 1),
    Sketcher.Constraint("Coincident", 5, 2, 6, 1),
    Sketcher.Constraint("Coincident", 6, 2, 7, 1),
    Sketcher.Constraint("Coincident", 7, 2, 4, 1),
    Sketcher.Constraint("Vertical", 0),
    Sketcher.Constraint("Horizontal", 1),
    Sketcher.Constraint("Vertical", 2),
    Sketcher.Constraint("Horizontal", 3),
    Sketcher.Constraint("Horizontal", 4),
    Sketcher.Constraint("Vertical", 5),
    Sketcher.Constraint("Horizontal", 6),
    Sketcher.Constraint("Vertical", 7),
    Sketcher.Constraint("Symmetric", 0, 2, 4, 2, -1),
    Sketcher.Constraint("Equal", 2, 5),
    Sketcher.Constraint("DistanceX", 1, 1, 1, 2, 51.7),
    Sketcher.Constraint("DistanceX", 4, 2, 4, 1, 32.7),
    Sketcher.Constraint("DistanceY", 0, 2, 0, 1, 23.5),
    Sketcher.Constraint("DistanceY", 2, 2, -1, 1, 35.0),
    Sketcher.Constraint("DistanceX", 0, 2, -1, 1, 49.35),
])
sketch13.setExpression("Constraints[18]", "Params.sketch13_width")
sketch13.setExpression("Constraints[19]", "Params.sketch13_width2")
sketch13.setExpression("Constraints[20]", "Params.sketch13_height")
pocket10 = body.newObject("PartDesign::Pocket", "Pocket009")
pocket10.Profile = sketch13
pocket10.setExpression("Length", "Params.pocket10_length")

doc.recompute()
